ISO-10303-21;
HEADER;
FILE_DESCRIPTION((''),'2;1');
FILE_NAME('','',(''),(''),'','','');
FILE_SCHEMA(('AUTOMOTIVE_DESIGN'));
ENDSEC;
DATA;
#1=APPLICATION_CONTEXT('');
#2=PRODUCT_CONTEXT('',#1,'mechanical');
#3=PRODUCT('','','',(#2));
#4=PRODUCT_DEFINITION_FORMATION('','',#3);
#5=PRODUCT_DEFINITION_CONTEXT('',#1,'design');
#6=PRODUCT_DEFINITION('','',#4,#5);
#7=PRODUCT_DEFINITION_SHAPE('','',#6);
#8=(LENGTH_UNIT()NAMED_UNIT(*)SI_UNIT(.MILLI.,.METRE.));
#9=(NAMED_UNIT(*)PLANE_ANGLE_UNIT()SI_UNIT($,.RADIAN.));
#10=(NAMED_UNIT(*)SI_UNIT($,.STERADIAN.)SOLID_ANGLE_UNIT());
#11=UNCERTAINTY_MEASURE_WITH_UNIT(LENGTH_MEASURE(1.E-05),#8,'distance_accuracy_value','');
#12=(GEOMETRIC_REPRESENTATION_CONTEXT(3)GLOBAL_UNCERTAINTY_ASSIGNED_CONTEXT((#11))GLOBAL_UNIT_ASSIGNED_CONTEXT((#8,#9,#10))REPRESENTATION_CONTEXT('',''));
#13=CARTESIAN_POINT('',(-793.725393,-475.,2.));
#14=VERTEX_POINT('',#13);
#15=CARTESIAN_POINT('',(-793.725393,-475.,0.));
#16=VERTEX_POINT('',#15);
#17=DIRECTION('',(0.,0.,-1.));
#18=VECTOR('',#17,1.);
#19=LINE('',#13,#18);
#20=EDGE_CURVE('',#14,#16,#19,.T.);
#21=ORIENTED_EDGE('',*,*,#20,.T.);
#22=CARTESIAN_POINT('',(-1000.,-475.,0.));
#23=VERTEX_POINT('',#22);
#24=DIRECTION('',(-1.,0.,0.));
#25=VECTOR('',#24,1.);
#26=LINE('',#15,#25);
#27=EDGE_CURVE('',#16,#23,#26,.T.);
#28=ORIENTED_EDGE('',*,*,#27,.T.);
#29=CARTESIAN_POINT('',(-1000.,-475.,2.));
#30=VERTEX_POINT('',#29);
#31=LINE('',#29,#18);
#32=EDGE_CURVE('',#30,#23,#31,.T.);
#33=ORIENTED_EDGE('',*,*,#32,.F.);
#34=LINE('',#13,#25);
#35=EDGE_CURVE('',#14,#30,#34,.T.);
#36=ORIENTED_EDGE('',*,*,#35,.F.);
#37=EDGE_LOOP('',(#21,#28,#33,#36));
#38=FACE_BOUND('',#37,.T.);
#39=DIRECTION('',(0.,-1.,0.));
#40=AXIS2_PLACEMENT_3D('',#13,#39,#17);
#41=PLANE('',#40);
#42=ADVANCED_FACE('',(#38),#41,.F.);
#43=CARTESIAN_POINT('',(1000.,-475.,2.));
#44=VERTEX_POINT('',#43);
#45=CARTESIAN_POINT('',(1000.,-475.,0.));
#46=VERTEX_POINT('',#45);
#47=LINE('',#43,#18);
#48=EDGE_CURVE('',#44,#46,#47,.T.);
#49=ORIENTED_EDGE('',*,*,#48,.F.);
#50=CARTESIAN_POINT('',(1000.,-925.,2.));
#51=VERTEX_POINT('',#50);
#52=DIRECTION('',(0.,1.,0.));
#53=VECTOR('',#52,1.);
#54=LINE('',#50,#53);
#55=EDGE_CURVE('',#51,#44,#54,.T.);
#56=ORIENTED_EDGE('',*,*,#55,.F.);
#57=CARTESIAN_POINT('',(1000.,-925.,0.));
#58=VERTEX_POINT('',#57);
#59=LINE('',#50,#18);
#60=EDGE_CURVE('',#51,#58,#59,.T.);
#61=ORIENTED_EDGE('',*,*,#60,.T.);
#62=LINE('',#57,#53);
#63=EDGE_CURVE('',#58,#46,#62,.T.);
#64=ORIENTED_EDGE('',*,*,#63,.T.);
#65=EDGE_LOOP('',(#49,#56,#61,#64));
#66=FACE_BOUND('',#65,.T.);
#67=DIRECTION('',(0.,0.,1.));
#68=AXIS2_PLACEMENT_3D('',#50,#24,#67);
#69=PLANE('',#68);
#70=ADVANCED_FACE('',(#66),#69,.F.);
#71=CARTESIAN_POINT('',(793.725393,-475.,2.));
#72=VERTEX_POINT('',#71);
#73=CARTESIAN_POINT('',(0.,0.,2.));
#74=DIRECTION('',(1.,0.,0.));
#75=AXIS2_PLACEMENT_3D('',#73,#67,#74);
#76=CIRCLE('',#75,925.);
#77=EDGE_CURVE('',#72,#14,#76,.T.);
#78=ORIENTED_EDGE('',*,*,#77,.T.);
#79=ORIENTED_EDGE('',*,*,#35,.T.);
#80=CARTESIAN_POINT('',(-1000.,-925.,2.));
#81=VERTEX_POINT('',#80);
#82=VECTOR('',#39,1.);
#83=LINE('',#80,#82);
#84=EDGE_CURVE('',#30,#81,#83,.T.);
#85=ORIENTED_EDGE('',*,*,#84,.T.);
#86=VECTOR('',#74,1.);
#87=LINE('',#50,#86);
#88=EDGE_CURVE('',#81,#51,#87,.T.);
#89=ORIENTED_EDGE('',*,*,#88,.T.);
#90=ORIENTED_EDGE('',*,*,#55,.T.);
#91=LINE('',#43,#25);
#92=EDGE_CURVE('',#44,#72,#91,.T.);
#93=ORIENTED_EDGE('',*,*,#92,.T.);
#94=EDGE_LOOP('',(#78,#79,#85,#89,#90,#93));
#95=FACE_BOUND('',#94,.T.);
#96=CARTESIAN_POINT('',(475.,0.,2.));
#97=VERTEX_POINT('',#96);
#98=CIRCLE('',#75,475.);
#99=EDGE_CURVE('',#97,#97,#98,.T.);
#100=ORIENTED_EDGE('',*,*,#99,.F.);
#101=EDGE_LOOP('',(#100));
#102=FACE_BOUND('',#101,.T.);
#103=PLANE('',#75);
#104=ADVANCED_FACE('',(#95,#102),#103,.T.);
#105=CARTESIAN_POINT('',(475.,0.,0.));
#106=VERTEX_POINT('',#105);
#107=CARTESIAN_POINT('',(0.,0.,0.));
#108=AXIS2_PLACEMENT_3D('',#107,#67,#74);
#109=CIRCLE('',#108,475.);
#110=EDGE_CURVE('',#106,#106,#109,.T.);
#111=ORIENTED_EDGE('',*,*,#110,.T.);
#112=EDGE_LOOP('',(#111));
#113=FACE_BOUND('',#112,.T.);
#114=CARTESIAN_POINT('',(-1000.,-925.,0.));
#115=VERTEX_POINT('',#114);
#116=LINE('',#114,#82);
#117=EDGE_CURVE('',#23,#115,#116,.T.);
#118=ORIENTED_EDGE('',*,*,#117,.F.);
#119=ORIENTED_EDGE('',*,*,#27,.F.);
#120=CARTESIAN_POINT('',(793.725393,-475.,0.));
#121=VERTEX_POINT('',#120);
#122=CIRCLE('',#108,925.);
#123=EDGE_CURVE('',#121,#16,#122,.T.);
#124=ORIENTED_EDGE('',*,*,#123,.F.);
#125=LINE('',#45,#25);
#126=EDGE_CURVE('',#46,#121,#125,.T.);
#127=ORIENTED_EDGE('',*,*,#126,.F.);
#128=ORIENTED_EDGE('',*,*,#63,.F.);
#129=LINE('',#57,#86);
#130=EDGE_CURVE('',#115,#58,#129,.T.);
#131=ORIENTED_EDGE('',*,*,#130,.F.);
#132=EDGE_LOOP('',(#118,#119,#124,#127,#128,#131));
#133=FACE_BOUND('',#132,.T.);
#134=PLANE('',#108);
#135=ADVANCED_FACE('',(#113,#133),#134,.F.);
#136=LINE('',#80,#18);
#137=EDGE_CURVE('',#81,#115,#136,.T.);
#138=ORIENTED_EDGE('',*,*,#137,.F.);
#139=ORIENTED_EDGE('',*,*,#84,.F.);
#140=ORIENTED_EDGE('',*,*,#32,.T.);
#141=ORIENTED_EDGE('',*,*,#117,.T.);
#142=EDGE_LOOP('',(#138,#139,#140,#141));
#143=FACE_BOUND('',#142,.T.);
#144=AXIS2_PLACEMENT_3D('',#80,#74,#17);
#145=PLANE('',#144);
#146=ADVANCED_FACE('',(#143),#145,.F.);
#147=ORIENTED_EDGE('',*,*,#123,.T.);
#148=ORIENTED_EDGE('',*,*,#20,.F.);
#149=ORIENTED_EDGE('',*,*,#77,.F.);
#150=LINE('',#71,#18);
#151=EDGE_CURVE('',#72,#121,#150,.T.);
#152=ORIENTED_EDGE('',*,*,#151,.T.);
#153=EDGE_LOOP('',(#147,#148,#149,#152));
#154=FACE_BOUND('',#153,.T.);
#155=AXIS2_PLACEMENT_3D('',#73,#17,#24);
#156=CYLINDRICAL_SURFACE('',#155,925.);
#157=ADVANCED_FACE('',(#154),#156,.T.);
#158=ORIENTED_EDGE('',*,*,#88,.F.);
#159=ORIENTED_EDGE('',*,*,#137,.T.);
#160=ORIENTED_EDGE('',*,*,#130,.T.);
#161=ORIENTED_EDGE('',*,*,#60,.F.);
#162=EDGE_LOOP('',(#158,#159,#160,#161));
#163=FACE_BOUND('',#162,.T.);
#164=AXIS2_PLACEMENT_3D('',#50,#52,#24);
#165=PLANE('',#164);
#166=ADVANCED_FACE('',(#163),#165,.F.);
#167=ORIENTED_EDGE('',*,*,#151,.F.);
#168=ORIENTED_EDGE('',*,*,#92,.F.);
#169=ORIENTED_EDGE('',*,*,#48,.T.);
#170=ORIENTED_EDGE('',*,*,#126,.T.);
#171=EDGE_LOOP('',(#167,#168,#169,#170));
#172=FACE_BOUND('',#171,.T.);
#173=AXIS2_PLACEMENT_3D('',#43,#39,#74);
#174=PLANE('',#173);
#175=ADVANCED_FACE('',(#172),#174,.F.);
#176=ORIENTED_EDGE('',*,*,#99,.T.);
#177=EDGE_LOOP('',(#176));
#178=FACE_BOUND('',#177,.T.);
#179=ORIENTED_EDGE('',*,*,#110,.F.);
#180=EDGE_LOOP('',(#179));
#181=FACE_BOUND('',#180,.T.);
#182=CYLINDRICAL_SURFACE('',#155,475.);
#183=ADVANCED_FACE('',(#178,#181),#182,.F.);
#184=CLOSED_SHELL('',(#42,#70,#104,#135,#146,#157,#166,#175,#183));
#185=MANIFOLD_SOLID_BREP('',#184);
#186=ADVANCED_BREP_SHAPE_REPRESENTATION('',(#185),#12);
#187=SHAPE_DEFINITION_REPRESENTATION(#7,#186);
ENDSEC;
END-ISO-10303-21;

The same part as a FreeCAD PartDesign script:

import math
import FreeCAD as App
import Part
import Sketcher
from FreeCAD import Vector
Q = App.Units.Quantity

doc = App.newDocument("Part")
body = doc.addObject("PartDesign::Body", "Body")

sketch1 = doc.addObject("Sketcher::SketchObject", "Sketch")
body.addObject(sketch1)
sketch1.AttachmentSupport = (doc.XY_Plane, [""])
sketch1.MapMode = "FlatFace"
sketch1.addGeometry([
    Part.LineSegment(Vector(-1000, -925, 0), Vector(1000, -925, 0)),
    Part.LineSegment(Vector(1000, -925, 0), Vector(1000, -475, 0)),
    Part.LineSegment(Vector(1000, -475, 0), Vector(794, -475, 0)),
    Part.ArcOfCircle(Part.Circle(Vector(0, 0, 0), Vector(0, 0, 1), 925), math.radians(-31), math.radians(211)),
    Part.LineSegment(Vector(-794, -475, 0), Vector(-1000, -475, 0)),
    Part.LineSegment(Vector(-1000, -475, 0), Vector(-1000, -925, 0)),
    Part.Circle(Vector(0, 0, 0), Vector(0, 0, 1), 475),
], False)
sketch1.addConstraint([
    Sketcher.Constraint("Coincident", 0, 2, 1, 1),
    Sketcher.Constraint("Coincident", 1, 2, 2, 1),
    Sketcher.Constraint("Coincident", 2, 2, 3, 1),
    Sketcher.Constraint("Coincident", 3, 2, 4, 1),
    Sketcher.Constraint("Coincident", 4, 2, 5, 1),
    Sketcher.Constraint("Coincident", 5, 2, 0, 1),
    Sketcher.Constraint("Horizontal", 0),
    Sketcher.Constraint("Vertical", 1),
    Sketcher.Constraint("Horizontal", 2),
    Sketcher.Constraint("Horizontal", 4),
    Sketcher.Constraint("Vertical", 5),
    Sketcher.Constraint("Coincident", 3, 3, -1, 1),
    Sketcher.Constraint("Coincident", 6, 3, -1, 1),
    Sketcher.Constraint("Symmetric", 1, 2, 4, 2, -2),
    Sketcher.Constraint("Diameter", 6, Q("950 mm")),
    Sketcher.Constraint("Radius", 3, Q("925 mm")),
    Sketcher.Constraint("DistanceX", 0, 1, 0, 2, Q("2000 mm")),
    Sketcher.Constraint("DistanceY", 1, 1, 1, 2, Q("450 mm")),
    Sketcher.Constraint("DistanceY", 0, 2, -1, 1, Q("925 mm")),
])
pad1 = doc.addObject("PartDesign::Pad", "Pad")
body.addObject(pad1)
pad1.Profile = sketch1
pad1.Length = 2

doc.recompute()
